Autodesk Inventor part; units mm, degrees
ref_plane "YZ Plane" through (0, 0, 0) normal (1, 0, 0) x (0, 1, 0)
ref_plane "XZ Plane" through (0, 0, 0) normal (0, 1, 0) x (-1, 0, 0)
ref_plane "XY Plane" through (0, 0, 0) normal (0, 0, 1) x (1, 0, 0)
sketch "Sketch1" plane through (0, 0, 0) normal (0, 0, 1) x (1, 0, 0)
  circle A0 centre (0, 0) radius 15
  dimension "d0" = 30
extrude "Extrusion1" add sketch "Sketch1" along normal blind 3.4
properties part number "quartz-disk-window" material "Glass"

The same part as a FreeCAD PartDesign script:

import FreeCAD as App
import Part
import Sketcher
from FreeCAD import Vector
Q = App.Units.Quantity

doc = App.newDocument("Part")
body = doc.addObject("PartDesign::Body", "Body")

# Sketch on XY plane
sketch1 = body.newObject("Sketcher::SketchObject", "Sketch")
sketch1.AttachmentSupport = (doc.getObject("XY_Plane"), [""])
sketch1.MapMode = "FlatFace"
sketch1.addGeometry(Part.Circle(Vector(0, 0, 0), Vector(0, 0, 1), 15), False)
sketch1.addConstraint([
    Sketcher.Constraint("Coincident", 0, 3, -1, 1),
    Sketcher.Constraint("Diameter", 0, Q("30 mm")),
])
pad1 = body.newObject("PartDesign::Pad", "Pad")
pad1.Profile = sketch1
pad1.Length = 3.4

doc.recompute()
